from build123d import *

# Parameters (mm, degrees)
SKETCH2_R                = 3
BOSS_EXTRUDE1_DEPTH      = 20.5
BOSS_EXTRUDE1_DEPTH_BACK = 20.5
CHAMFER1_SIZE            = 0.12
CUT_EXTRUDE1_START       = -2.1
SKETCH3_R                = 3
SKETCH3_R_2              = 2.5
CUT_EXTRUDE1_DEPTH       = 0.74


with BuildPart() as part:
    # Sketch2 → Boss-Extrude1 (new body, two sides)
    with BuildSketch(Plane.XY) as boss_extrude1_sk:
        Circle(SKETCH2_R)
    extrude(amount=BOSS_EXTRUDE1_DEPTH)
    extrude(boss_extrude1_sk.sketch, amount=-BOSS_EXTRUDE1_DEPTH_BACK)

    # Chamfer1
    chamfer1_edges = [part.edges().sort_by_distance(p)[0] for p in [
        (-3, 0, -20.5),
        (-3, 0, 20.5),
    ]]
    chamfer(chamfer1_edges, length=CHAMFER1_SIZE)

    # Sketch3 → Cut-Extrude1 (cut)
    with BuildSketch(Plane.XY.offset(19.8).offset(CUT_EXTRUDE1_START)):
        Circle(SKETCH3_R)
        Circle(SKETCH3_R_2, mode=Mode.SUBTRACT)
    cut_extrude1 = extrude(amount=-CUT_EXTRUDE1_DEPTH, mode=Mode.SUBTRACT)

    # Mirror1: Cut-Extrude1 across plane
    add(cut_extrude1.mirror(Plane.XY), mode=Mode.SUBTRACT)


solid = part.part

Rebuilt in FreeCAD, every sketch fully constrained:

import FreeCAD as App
import Part
import Sketcher
from FreeCAD import Vector
Q = App.Units.Quantity


def edges_at(feature, points):
    """Names of the edges that pass closest to the given points."""
    edges = feature.Shape.Edges
    near = lambda p: min(range(len(edges)), key=lambda i: edges[i].distToShape(Part.Vertex(*p))[0])
    return sorted({f"Edge{near(p) + 1}" for p in points})

doc = App.newDocument("Part")
params = doc.addObject("Spreadsheet::Sheet", "Params")
for row, (alias, value) in enumerate([
    ("sketch1_diameter", "6 mm"),
    ("pad1_length", "20.5 mm"),
    ("pad1_length2", "20.5 mm"),
    ("chamfer_size", "0.12 mm"),
    ("sketch2_diameter", "6 mm"),
    ("sketch2_diameter2", "5 mm"),
    ("pocket1_length", "0.74 mm"),
], start=1):
    params.set(f"A{row}", alias)
    params.set(f"B{row}", "=" + value)
    params.setAlias(f"B{row}", alias)

body = doc.addObject("PartDesign::Body", "Body")

# Sketch on XY plane
sketch1 = body.newObject("Sketcher::SketchObject", "Sketch")
sketch1.AttachmentSupport = (doc.getObject("XY_Plane"), [""])
sketch1.MapMode = "FlatFace"
sketch1.addGeometry(Part.Circle(Vector(0, 0, 0), Vector(0, 0, 1), 3), False)
sketch1.addConstraint(Sketcher.Constraint("Coincident", 0, 3, -1, 1))
sketch1.addConstraint(Sketcher.Constraint("Diameter", 0, Q("6 mm")))
sketch1.setExpression("Constraints[1]", "Params.sketch1_diameter")
pad1 = body.newObject("PartDesign::Pad", "Pad")
pad1.Profile = sketch1
pad1.Type = "TwoLengths"
pad1.setExpression("Length", "Params.pad1_length")
pad1.setExpression("Length2", "Params.pad1_length2")
doc.recompute()

chamfer = body.newObject("PartDesign::Chamfer", "Chamfer")
chamfer.Base = (pad1, edges_at(pad1, [(-3, 0, -20.5), (-3, 0, 20.5)]))
chamfer.setExpression("Size", "Params.chamfer_size")

# Sketch on XY plane
sketch2 = body.newObject("Sketcher::SketchObject", "Sketch001")
sketch2.AttachmentSupport = (doc.getObject("XY_Plane"), [""])
sketch2.MapMode = "FlatFace"
sketch2.AttachmentOffset = App.Placement(Vector(0, 0, 17.7), App.Rotation())
sketch2.addGeometry(Part.Circle(Vector(0, 0, 0), Vector(0, 0, 1), 3), False)
sketch2.addGeometry(Part.Circle(Vector(0, 0, 0), Vector(0, 0, 1), 2.5), False)
sketch2.addConstraint(Sketcher.Constraint("Coincident", 0, 3, -1, 1))
sketch2.addConstraint(Sketcher.Constraint("Coincident", 1, 3, -1, 1))
sketch2.addConstraint(Sketcher.Constraint("Diameter", 0, Q("6 mm")))
sketch2.addConstraint(Sketcher.Constraint("Diameter", 1, Q("5 mm")))
sketch2.setExpression("Constraints[2]", "Params.sketch2_diameter")
sketch2.setExpression("Constraints[3]", "Params.sketch2_diameter2")
pocket1 = body.newObject("PartDesign::Pocket", "Pocket")
pocket1.Profile = sketch2
pocket1.setExpression("Length", "Params.pocket1_length")
doc.recompute()

mirrored = body.newObject("PartDesign::Mirrored", "Mirrored")
mirrored.Originals = [pocket1]
mirrored.MirrorPlane = (doc.getObject("XY_Plane"), [""])
body.Tip = mirrored

doc.recompute()
